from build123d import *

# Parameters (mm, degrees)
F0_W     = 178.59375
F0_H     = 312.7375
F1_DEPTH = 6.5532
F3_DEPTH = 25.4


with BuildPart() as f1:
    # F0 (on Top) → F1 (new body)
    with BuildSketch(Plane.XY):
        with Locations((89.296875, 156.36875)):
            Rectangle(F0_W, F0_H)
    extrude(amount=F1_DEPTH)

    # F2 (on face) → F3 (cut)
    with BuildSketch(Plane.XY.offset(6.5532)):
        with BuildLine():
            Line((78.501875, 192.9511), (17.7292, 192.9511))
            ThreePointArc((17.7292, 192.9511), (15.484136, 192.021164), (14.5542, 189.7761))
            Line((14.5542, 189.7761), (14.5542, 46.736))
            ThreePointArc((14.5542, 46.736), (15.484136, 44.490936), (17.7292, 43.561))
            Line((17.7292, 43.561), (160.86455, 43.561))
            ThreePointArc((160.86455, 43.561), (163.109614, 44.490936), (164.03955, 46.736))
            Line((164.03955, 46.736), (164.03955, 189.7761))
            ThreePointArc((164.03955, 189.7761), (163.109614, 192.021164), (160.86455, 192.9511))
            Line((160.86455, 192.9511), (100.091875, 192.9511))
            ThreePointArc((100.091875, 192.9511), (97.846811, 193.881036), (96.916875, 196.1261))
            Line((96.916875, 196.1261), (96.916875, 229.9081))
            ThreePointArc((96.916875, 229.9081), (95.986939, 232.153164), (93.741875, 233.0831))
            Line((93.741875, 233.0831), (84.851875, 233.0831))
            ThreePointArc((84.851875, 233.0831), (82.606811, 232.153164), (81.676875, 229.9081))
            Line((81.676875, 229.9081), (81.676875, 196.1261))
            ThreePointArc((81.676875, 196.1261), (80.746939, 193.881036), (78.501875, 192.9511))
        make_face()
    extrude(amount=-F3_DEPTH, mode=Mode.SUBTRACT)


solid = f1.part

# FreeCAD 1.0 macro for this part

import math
import FreeCAD as App
import Part
import Sketcher

V = App.Vector
Q = App.Units.Quantity


def add_polygon(sketch, points):
    """Adds a closed chain of lines whose ends are joined by coincident constraints."""
    first, n = sketch.GeometryCount, len(points)
    for a, b in zip(points, points[1:] + points[:1]):
        sketch.addGeometry(Part.LineSegment(App.Vector(*a, 0), App.Vector(*b, 0)), False)
    for i in range(n):
        sketch.addConstraint(Sketcher.Constraint("Coincident", first + i, 2, first + (i + 1) % n, 1))

doc = App.newDocument("Part")
body = doc.addObject("PartDesign::Body", "Body")

# Sketch on XY plane
sketch1 = body.newObject("Sketcher::SketchObject", "Sketch")
sketch1.AttachmentSupport = (doc.getObject("XY_Plane"), [""])
sketch1.MapMode = "FlatFace"
add_polygon(sketch1, [(0, 313), (0, 0), (179, 0), (179, 313)])  # lines 0-3
sketch1.addConstraint(Sketcher.Constraint("Vertical", 0))
sketch1.addConstraint(Sketcher.Constraint("Horizontal", 1))
sketch1.addConstraint(Sketcher.Constraint("Vertical", 2))
sketch1.addConstraint(Sketcher.Constraint("Horizontal", 3))
sketch1.addConstraint(Sketcher.Constraint("Coincident", 0, 2, -1, 1))
sketch1.addConstraint(Sketcher.Constraint("DistanceX", 1, 1, 1, 2, Q("7.03125 in")))
sketch1.addConstraint(Sketcher.Constraint("DistanceY", 0, 2, 0, 1, Q("12.3125 in")))
pad1 = body.newObject("PartDesign::Pad", "Pad")
pad1.Profile = sketch1
pad1.Length = Q("0.258 in")

# Sketch on XY plane
sketch2 = body.newObject("Sketcher::SketchObject", "Sketch001")
sketch2.AttachmentSupport = (doc.getObject("XY_Plane"), [""])
sketch2.MapMode = "FlatFace"
sketch2.AttachmentOffset = App.Placement(V(0, 0, 0.258 * 25.4), App.Rotation())
sketch2.addGeometry(Part.LineSegment(V(78.5, 193, 0), V(17.7, 193, 0)), False)
sketch2.addGeometry(Part.ArcOfCircle(Part.Circle(V(17.7, 189.8, 0), V(0, 0, 1), 3.2), math.radians(90), math.radians(180)), False)
sketch2.addGeometry(Part.LineSegment(V(14.6, 189.8, 0), V(14.6, 46.7, 0)), False)
sketch2.addGeometry(Part.ArcOfCircle(Part.Circle(V(17.7, 46.7, 0), V(0, 0, 1), 3.2), math.radians(-180), math.radians(-90)), False)
sketch2.addGeometry(Part.LineSegment(V(17.7, 43.6, 0), V(160.9, 43.6, 0)), False)
sketch2.addGeometry(Part.ArcOfCircle(Part.Circle(V(160.9, 46.7, 0), V(0, 0, 1), 3.2), math.radians(-90), math.radians(0)), False)
sketch2.addGeometry(Part.LineSegment(V(164, 46.7, 0), V(164, 189.8, 0)), False)
sketch2.addGeometry(Part.ArcOfCircle(Part.Circle(V(160.9, 189.8, 0), V(0, 0, 1), 3.2), math.radians(0), math.radians(90)), False)
sketch2.addGeometry(Part.LineSegment(V(160.9, 193, 0), V(100.1, 193, 0)), False)
sketch2.addGeometry(Part.ArcOfCircle(Part.Circle(V(100.1, 196.1, 0), V(0, 0, 1), 3.2), math.radians(-180), math.radians(-90)), False)
sketch2.addGeometry(Part.LineSegment(V(96.9, 196.1, 0), V(96.9, 229.9, 0)), False)
sketch2.addGeometry(Part.ArcOfCircle(Part.Circle(V(93.7, 229.9, 0), V(0, 0, 1), 3.2), math.radians(0), math.radians(90)), False)
sketch2.addGeometry(Part.LineSegment(V(93.7, 233.1, 0), V(84.9, 233.1, 0)), False)
sketch2.addGeometry(Part.ArcOfCircle(Part.Circle(V(84.9, 229.9, 0), V(0, 0, 1), 3.2), math.radians(90), math.radians(180)), False)
sketch2.addGeometry(Part.LineSegment(V(81.7, 229.9, 0), V(81.7, 196.1, 0)), False)
sketch2.addGeometry(Part.ArcOfCircle(Part.Circle(V(78.5, 196.1, 0), V(0, 0, 1), 3.2), math.radians(-90), math.radians(0)), False)
sketch2.addConstraint(Sketcher.Constraint("Tangent", 0, 2, 1, 1))
sketch2.addConstraint(Sketcher.Constraint("Tangent", 1, 2, 2, 1))
sketch2.addConstraint(Sketcher.Constraint("Tangent", 2, 2, 3, 1))
sketch2.addConstraint(Sketcher.Constraint("Tangent", 3, 2, 4, 1))
sketch2.addConstraint(Sketcher.Constraint("Tangent", 4, 2, 5, 1))
sketch2.addConstraint(Sketcher.Constraint("Tangent", 5, 2, 6, 1))
sketch2.addConstraint(Sketcher.Constraint("Tangent", 6, 2, 7, 1))
sketch2.addConstraint(Sketcher.Constraint("Tangent", 7, 2, 8, 1))
sketch2.addConstraint(Sketcher.Constraint("Tangent", 8, 2, 9, 2))
sketch2.addConstraint(Sketcher.Constraint("Tangent", 9, 1, 10, 1))
sketch2.addConstraint(Sketcher.Constraint("Tangent", 10, 2, 11, 1))
sketch2.addConstraint(Sketcher.Constraint("Tangent", 11, 2, 12, 1))
sketch2.addConstraint(Sketcher.Constraint("Tangent", 12, 2, 13, 1))
sketch2.addConstraint(Sketcher.Constraint("Tangent", 13, 2, 14, 1))
sketch2.addConstraint(Sketcher.Constraint("Tangent", 14, 2, 15, 2))
sketch2.addConstraint(Sketcher.Constraint("Tangent", 15, 1, 0, 1))
sketch2.addConstraint(Sketcher.Constraint("Horizontal", 0))
sketch2.addConstraint(Sketcher.Constraint("Vertical", 2))
sketch2.addConstraint(Sketcher.Constraint("Horizontal", 4))
sketch2.addConstraint(Sketcher.Constraint("Vertical", 6))
sketch2.addConstraint(Sketcher.Constraint("Horizontal", 8))
sketch2.addConstraint(Sketcher.Constraint("Vertical", 10))
sketch2.addConstraint(Sketcher.Constraint("Horizontal", 12))
sketch2.addConstraint(Sketcher.Constraint("Vertical", 14))
sketch2.addConstraint(Sketcher.Constraint("Equal", 1, 3))
sketch2.addConstraint(Sketcher.Constraint("Equal", 3, 5))
sketch2.addConstraint(Sketcher.Constraint("Equal", 5, 7))
sketch2.addConstraint(Sketcher.Constraint("Equal", 7, 9))
sketch2.addConstraint(Sketcher.Constraint("Equal", 9, 11))
sketch2.addConstraint(Sketcher.Constraint("Equal", 11, 13))
sketch2.addConstraint(Sketcher.Constraint("Equal", 13, 15))
sketch2.addConstraint(Sketcher.Constraint("Horizontal", 1, 3, 7, 3))
sketch2.addConstraint(Sketcher.Constraint("Equal", 0, 8))
sketch2.addConstraint(Sketcher.Constraint("Radius", 1, Q("0.125 in")))
sketch2.addConstraint(Sketcher.Constraint("DistanceX", 12, 2, 12, 1, Q("0.35 in")))
sketch2.addConstraint(Sketcher.Constraint("DistanceY", 10, 1, 10, 2, Q("1.33 in")))
sketch2.addConstraint(Sketcher.Constraint("DistanceY", -1, 1, 3, 3, Q("1.84 in")))
sketch2.addConstraint(Sketcher.Constraint("DistanceY", 2, 2, 2, 1, Q("5.6315 in")))
sketch2.addConstraint(Sketcher.Constraint("DistanceX", -1, 1, 1, 3, Q("0.698 in")))
sketch2.addConstraint(Sketcher.Constraint("DistanceX", 4, 1, 4, 2, 143.13535))
pocket1 = body.newObject("PartDesign::Pocket", "Pocket")
pocket1.Profile = sketch2
pocket1.Length = Q("1 in")

doc.recompute()
